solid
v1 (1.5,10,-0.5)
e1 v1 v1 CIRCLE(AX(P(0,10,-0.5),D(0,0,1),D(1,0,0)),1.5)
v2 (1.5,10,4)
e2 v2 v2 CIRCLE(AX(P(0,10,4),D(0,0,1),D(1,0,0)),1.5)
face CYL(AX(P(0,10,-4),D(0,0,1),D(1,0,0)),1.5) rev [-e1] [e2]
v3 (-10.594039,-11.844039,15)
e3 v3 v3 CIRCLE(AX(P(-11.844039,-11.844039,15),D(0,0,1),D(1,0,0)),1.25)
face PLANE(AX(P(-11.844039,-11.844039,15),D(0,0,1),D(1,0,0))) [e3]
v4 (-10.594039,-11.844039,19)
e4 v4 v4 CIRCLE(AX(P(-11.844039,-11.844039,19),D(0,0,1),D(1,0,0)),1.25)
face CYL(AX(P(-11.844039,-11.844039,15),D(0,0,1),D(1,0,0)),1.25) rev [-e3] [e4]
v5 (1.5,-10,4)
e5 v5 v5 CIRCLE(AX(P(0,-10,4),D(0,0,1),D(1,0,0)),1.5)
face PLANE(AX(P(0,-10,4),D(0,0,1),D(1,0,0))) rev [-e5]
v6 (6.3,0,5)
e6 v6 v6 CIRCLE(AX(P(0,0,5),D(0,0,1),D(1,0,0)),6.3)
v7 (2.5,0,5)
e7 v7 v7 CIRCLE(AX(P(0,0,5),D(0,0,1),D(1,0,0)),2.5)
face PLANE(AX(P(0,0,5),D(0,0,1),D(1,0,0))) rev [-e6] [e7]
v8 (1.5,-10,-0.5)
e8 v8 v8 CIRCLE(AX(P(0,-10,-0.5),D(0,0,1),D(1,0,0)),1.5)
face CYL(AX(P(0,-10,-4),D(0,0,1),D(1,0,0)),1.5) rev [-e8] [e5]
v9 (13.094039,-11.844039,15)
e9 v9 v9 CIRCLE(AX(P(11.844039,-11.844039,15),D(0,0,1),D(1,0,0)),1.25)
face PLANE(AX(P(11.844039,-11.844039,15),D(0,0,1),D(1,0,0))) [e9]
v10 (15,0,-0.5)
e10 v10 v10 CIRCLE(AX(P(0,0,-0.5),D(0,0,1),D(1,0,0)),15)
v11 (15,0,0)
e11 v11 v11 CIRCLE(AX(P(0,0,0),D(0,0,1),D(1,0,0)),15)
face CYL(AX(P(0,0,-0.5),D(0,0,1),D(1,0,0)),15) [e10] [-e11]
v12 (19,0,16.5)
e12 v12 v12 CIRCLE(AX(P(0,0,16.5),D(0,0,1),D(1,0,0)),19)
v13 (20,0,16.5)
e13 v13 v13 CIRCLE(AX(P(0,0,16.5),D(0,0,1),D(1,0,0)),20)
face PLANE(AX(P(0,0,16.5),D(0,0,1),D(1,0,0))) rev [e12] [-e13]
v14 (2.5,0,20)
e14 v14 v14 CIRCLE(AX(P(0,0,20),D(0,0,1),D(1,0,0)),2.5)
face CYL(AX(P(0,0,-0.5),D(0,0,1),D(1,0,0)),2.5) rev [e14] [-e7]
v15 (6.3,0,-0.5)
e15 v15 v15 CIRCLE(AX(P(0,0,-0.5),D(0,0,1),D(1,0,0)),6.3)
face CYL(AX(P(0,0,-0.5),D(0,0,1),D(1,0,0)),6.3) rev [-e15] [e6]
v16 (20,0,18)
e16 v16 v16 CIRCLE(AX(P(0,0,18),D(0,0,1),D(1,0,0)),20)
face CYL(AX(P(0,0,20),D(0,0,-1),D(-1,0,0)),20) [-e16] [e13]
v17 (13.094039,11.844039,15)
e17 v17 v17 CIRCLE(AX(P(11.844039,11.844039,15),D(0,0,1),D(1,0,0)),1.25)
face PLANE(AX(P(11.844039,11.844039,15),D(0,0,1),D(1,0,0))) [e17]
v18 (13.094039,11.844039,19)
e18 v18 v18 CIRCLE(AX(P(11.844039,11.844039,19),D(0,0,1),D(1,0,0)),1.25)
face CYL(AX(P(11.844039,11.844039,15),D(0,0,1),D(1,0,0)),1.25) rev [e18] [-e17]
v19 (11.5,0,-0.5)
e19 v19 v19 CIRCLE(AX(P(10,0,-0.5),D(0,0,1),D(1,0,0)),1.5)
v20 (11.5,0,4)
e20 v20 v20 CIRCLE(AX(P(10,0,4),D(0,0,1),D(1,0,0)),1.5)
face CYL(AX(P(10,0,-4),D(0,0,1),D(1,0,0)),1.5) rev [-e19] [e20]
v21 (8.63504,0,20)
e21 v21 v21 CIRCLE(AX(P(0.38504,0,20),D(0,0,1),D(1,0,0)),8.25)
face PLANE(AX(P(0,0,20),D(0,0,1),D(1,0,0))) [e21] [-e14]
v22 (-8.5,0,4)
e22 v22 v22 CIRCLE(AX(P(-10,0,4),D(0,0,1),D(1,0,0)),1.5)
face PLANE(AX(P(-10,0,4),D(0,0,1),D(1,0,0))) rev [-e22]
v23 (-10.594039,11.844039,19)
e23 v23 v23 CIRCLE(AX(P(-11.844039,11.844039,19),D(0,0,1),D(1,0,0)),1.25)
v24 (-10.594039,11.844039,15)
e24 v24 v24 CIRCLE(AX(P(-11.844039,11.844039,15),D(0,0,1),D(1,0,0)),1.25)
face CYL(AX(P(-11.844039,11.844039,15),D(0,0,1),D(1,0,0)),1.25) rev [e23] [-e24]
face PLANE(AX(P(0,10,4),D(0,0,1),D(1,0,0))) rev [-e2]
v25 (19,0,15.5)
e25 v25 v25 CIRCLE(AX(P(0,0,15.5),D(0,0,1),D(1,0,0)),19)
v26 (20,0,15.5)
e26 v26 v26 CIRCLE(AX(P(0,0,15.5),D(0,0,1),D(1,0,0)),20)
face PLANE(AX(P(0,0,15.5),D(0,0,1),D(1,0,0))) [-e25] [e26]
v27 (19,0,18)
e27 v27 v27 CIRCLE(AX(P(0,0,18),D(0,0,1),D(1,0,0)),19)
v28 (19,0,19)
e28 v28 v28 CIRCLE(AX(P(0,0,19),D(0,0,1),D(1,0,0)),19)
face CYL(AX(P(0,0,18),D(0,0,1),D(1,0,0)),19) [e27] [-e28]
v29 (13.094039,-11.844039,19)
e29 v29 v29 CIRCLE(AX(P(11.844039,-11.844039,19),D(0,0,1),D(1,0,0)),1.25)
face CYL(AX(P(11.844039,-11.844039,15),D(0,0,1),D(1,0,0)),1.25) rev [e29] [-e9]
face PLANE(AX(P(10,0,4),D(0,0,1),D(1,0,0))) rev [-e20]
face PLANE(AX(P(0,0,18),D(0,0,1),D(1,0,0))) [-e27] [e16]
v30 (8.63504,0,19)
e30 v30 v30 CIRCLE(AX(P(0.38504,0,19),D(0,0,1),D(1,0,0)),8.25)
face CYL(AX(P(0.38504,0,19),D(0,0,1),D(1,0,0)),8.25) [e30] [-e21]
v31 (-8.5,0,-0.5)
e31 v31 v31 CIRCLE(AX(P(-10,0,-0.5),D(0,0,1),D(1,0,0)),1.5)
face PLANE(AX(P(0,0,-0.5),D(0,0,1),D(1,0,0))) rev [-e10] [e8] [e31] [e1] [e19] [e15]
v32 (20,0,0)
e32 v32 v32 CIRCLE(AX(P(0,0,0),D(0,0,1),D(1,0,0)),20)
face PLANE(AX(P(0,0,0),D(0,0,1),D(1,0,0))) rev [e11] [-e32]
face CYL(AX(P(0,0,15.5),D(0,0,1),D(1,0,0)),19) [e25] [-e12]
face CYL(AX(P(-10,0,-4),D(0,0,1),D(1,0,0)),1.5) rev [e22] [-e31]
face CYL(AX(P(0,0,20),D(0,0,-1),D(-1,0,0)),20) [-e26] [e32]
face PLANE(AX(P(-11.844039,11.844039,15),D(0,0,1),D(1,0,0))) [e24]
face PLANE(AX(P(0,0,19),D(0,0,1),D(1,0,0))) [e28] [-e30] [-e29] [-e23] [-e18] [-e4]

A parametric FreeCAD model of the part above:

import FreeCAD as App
import Part
import Sketcher

doc = App.newDocument("Part")
body = doc.addObject("PartDesign::Body", "Body")

# Sketch on XY plane
sketch1 = body.newObject("Sketcher::SketchObject", "Sketch")
sketch1.AttachmentSupport = (doc.getObject("XY_Plane"), [""])
sketch1.MapMode = "FlatFace"
sketch1.addGeometry(Part.Circle(App.Vector(0, 0, 0), App.Vector(0, 0, 1), 20), False)
sketch1.addConstraint([
    Sketcher.Constraint("Coincident", 0, 3, -1, 1),
    Sketcher.Constraint("Diameter", 0, 40.0),
])
pad1 = body.newObject("PartDesign::Pad", "Pad")
pad1.Profile = sketch1
pad1.Length = 20

# Sketch on XY plane
sketch2 = body.newObject("Sketcher::SketchObject", "Sketch001")
sketch2.AttachmentSupport = (doc.getObject("XY_Plane"), [""])
sketch2.MapMode = "FlatFace"
sketch2.addGeometry(Part.Circle(App.Vector(0, 0, 0), App.Vector(0, 0, 1), 15), False)
sketch2.addConstraint([
    Sketcher.Constraint("Coincident", 0, 3, -1, 1),
    Sketcher.Constraint("Diameter", 0, 30.0),
])
pad2 = body.newObject("PartDesign::Pad", "Pad001")
pad2.Profile = sketch2
pad2.Length = 0.5
pad2.Reversed = True

# Sketch on XY plane
sketch3 = body.newObject("Sketcher::SketchObject", "Sketch002")
sketch3.AttachmentSupport = (doc.getObject("XY_Plane"), [""])
sketch3.MapMode = "FlatFace"
sketch3.addGeometry([
    Part.Circle(App.Vector(0, 10, 0), App.Vector(0, 0, 1), 1.5),
    Part.Circle(App.Vector(10, 0, 0), App.Vector(0, 0, 1), 1.5),
    Part.Circle(App.Vector(0, -10, 0), App.Vector(0, 0, 1), 1.5),
    Part.Circle(App.Vector(-10, 0, 0), App.Vector(0, 0, 1), 1.5),
], False)
sketch3.addConstraint([
    Sketcher.Constraint("Equal", 0, 1),
    Sketcher.Constraint("Equal", 1, 2),
    Sketcher.Constraint("Equal", 2, 3),
    Sketcher.Constraint("Symmetric", 0, 3, 2, 3, -1, 1),
    Sketcher.Constraint("Symmetric", 1, 3, 3, 3, -1, 1),
    Sketcher.Constraint("PointOnObject", 0, 3, -2),
    Sketcher.Constraint("PointOnObject", 1, 3, -1),
    Sketcher.Constraint("Diameter", 0, 3.0),
    Sketcher.Constraint("DistanceY", -1, 1, 0, 3, 10.0),
    Sketcher.Constraint("DistanceX", -1, 1, 1, 3, 10.0),
])
pocket1 = body.newObject("PartDesign::Pocket", "Pocket")
pocket1.Profile = sketch3
pocket1.Type = "TwoLengths"
pocket1.Length = 4
pocket1.Length2 = 4
pocket1.Reversed = True

# Sketch on XY plane
sketch4 = body.newObject("Sketcher::SketchObject", "Sketch003")
sketch4.AttachmentSupport = (doc.getObject("XY_Plane"), [""])
sketch4.MapMode = "FlatFace"
sketch4.AttachmentOffset = App.Placement(App.Vector(0, 0, 19), App.Rotation())
sketch4.addGeometry([
    Part.Circle(App.Vector(0, 0, 0), App.Vector(0, 0, 1), 20),
    Part.Circle(App.Vector(0, 0, 0), App.Vector(0, 0, 1), 8),
], False)
sketch4.addConstraint([
    Sketcher.Constraint("Coincident", 0, 3, -1, 1),
    Sketcher.Constraint("PointOnObject", 1, 3, -1),
    Sketcher.Constraint("Diameter", 0, 40.0),
    Sketcher.Constraint("Diameter", 1, 16.5),
    Sketcher.Constraint("DistanceX", -1, 1, 1, 3, 0.38504),
])
pocket2 = body.newObject("PartDesign::Pocket", "Pocket001")
pocket2.Profile = sketch4
pocket2.Length = 1
pocket2.Reversed = True

# Sketch on XY plane
sketch5 = body.newObject("Sketcher::SketchObject", "Sketch004")
sketch5.AttachmentSupport = (doc.getObject("XY_Plane"), [""])
sketch5.MapMode = "FlatFace"
sketch5.AttachmentOffset = App.Placement(App.Vector(0, 0, 18), App.Rotation())
sketch5.addGeometry([
    Part.Circle(App.Vector(0, 0, 0), App.Vector(0, 0, 1), 20),
    Part.Circle(App.Vector(0, 0, 0), App.Vector(0, 0, 1), 19),
], False)
sketch5.addConstraint([
    Sketcher.Constraint("Coincident", 0, 3, -1, 1),
    Sketcher.Constraint("Coincident", 1, 3, -1, 1),
    Sketcher.Constraint("Diameter", 0, 40.0),
    Sketcher.Constraint("Diameter", 1, 38.0),
])
pocket3 = body.newObject("PartDesign::Pocket", "Pocket002")
pocket3.Profile = sketch5
pocket3.Length = 2
pocket3.Reversed = True

# Sketch on XY plane
sketch6 = body.newObject("Sketcher::SketchObject", "Sketch005")
sketch6.AttachmentSupport = (doc.getObject("XY_Plane"), [""])
sketch6.MapMode = "FlatFace"
sketch6.AttachmentOffset = App.Placement(App.Vector(0, 0, 15.5), App.Rotation())
sketch6.addGeometry([
    Part.Circle(App.Vector(0, 0, 0), App.Vector(0, 0, 1), 20),
    Part.Circle(App.Vector(0, 0, 0), App.Vector(0, 0, 1), 19),
], False)
sketch6.addConstraint([
    Sketcher.Constraint("Coincident", 0, 3, -1, 1),
    Sketcher.Constraint("Coincident", 1, 3, -1, 1),
    Sketcher.Constraint("Diameter", 0, 40.0),
    Sketcher.Constraint("Diameter", 1, 38.0),
])
pocket4 = body.newObject("PartDesign::Pocket", "Pocket003")
pocket4.Profile = sketch6
pocket4.Length = 1
pocket4.Reversed = True

# Sketch on XY plane
sketch7 = body.newObject("Sketcher::SketchObject", "Sketch006")
sketch7.AttachmentSupport = (doc.getObject("XY_Plane"), [""])
sketch7.MapMode = "FlatFace"
sketch7.AttachmentOffset = App.Placement(App.Vector(0, 0, 20), App.Rotation())
sketch7.addGeometry([
    Part.Circle(App.Vector(-11.8, -11.8, 0), App.Vector(0, 0, 1), 1.2),
    Part.Circle(App.Vector(-11.8, 11.8, 0), App.Vector(0, 0, 1), 1.2),
    Part.Circle(App.Vector(11.8, 11.8, 0), App.Vector(0, 0, 1), 1.2),
    Part.Circle(App.Vector(11.8, -11.8, 0), App.Vector(0, 0, 1), 1.2),
], False)
sketch7.addConstraint([
    Sketcher.Constraint("Equal", 0, 1),
    Sketcher.Constraint("Equal", 1, 2),
    Sketcher.Constraint("Equal", 2, 3),
    Sketcher.Constraint("Symmetric", 0, 3, 2, 3, -1, 1),
    Sketcher.Constraint("Symmetric", 1, 3, 3, 3, -1, 1),
    Sketcher.Constraint("Symmetric", 1, 3, 2, 3, -2),
    Sketcher.Constraint("Diameter", 0, 2.5),
    Sketcher.Constraint("DistanceX", 0, 3, -1, 1, 11.844039),
    Sketcher.Constraint("DistanceY", 0, 3, -1, 1, 11.844039),
])
pocket5 = body.newObject("PartDesign::Pocket", "Pocket004")
pocket5.Profile = sketch7
pocket5.Length = 5

# Sketch on XY plane
sketch8 = body.newObject("Sketcher::SketchObject", "Sketch007")
sketch8.AttachmentSupport = (doc.getObject("XY_Plane"), [""])
sketch8.MapMode = "FlatFace"
sketch8.addGeometry(Part.Circle(App.Vector(0, 0, 0), App.Vector(0, 0, 1), 6), False)
sketch8.addConstraint([
    Sketcher.Constraint("Coincident", 0, 3, -1, 1),
    Sketcher.Constraint("Diameter", 0, 12.6),
])
pocket6 = body.newObject("PartDesign::Pocket", "Pocket005")
pocket6.Profile = sketch8
pocket6.Type = "TwoLengths"
pocket6.Length = 5
pocket6.Length2 = 35.641016
pocket6.Reversed = True

# Sketch on XY plane
sketch9 = body.newObject("Sketcher::SketchObject", "Sketch008")
sketch9.AttachmentSupport = (doc.getObject("XY_Plane"), [""])
sketch9.MapMode = "FlatFace"
sketch9.addGeometry(Part.Circle(App.Vector(0, 0, 0), App.Vector(0, 0, 1), 2.5), False)
sketch9.addConstraint([
    Sketcher.Constraint("Coincident", 0, 3, -1, 1),
    Sketcher.Constraint("Diameter", 0, 5.0),
])
pocket7 = body.newObject("PartDesign::Pocket", "Pocket006")
pocket7.Profile = sketch9
pocket7.Type = "ThroughAll"
pocket7.Midplane = True

doc.recompute()
